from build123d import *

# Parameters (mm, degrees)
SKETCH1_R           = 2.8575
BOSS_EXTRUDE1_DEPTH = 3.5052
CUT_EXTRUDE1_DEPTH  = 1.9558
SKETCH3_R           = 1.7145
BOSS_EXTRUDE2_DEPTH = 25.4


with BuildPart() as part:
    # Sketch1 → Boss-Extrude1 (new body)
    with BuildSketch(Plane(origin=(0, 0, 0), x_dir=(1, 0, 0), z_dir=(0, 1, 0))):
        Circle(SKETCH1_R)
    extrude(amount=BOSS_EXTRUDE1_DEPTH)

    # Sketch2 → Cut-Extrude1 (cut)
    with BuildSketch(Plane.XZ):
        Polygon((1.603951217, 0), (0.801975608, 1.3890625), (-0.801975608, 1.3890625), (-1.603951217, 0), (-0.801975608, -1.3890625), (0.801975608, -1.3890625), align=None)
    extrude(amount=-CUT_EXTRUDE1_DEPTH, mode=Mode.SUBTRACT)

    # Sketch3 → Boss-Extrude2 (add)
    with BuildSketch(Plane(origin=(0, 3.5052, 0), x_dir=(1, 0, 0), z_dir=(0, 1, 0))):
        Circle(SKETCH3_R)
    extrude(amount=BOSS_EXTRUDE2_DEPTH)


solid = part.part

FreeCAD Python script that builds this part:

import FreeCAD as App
import Part
import Sketcher

V = App.Vector
Q = App.Units.Quantity

doc = App.newDocument("Part")
body = doc.addObject("PartDesign::Body", "Body")

sketch1 = body.newObject("Sketcher::SketchObject", "Sketch")
sketch1.AttachmentSupport = (doc.getObject("XZ_Plane"), [""])
sketch1.MapMode = "FlatFace"
sketch1.addGeometry(Part.Circle(V(0, 0, 0), V(0, 0, 1), 2.8575), False)
sketch1.addConstraint([
    Sketcher.Constraint("Coincident", 0, 3, -1, 1),
    Sketcher.Constraint("Diameter", 0, Q("0.225 in")),
])
pad1 = body.newObject("PartDesign::Pad", "Pad")
pad1.Profile = sketch1
pad1.Length = Q("0.138 in")
pad1.Reversed = True

sketch2 = body.newObject("Sketcher::SketchObject", "Sketch001")
sketch2.AttachmentSupport = (doc.getObject("XZ_Plane"), [""])
sketch2.MapMode = "FlatFace"
sketch2.addGeometry([
    Part.LineSegment(V(1.603951, 0, 0), V(0.801976, 1.389063, 0)),
    Part.LineSegment(V(0.801976, 1.389063, 0), V(-0.801976, 1.389063, 0)),
    Part.LineSegment(V(-0.801976, 1.389063, 0), V(-1.603951, 0, 0)),
    Part.LineSegment(V(-1.603951, 0, 0), V(-0.801976, -1.389063, 0)),
    Part.LineSegment(V(-0.801976, -1.389063, 0), V(0.801976, -1.389063, 0)),
    Part.LineSegment(V(0.801976, -1.389063, 0), V(1.603951, 0, 0)),
], False)
sketch2.addConstraint([
    Sketcher.Constraint("Coincident", 0, 2, 1, 1),
    Sketcher.Constraint("Coincident", 1, 2, 2, 1),
    Sketcher.Constraint("Coincident", 2, 2, 3, 1),
    Sketcher.Constraint("Coincident", 3, 2, 4, 1),
    Sketcher.Constraint("Coincident", 4, 2, 5, 1),
    Sketcher.Constraint("Coincident", 5, 2, 0, 1),
    Sketcher.Constraint("Horizontal", 1),
    Sketcher.Constraint("Horizontal", 4),
    Sketcher.Constraint("Symmetric", 0, 2, 3, 2, -1, 1),
    Sketcher.Constraint("Symmetric", 2, 2, 5, 2, -1, 1),
    Sketcher.Constraint("PointOnObject", 2, 2, -1),
    Sketcher.Constraint("Parallel", 2, 5),
    Sketcher.Constraint("Vertical", 1, 2, 3, 2),
    Sketcher.Constraint("Angle", 0, Q("120 deg")),
    Sketcher.Constraint("DistanceY", 3, 2, 1, 2, Q("0.109375 in")),
    Sketcher.Constraint("DistanceX", 1, 2, 1, 1, Q("1.603951 mm")),
])
pocket1 = body.newObject("PartDesign::Pocket", "Pocket")
pocket1.Profile = sketch2
pocket1.Length = Q("0.077 in")

sketch3 = body.newObject("Sketcher::SketchObject", "Sketch002")
sketch3.AttachmentSupport = (doc.getObject("XZ_Plane"), [""])
sketch3.MapMode = "FlatFace"
sketch3.AttachmentOffset = App.Placement(V(0, 0, -0.138 * 25.4), App.Rotation())
sketch3.addGeometry(Part.Circle(V(0, 0, 0), V(0, 0, 1), 1.7145), False)
sketch3.addConstraint([
    Sketcher.Constraint("Coincident", 0, 3, -1, 1),
    Sketcher.Constraint("Diameter", 0, Q("0.135 in")),
])
pad2 = body.newObject("PartDesign::Pad", "Pad001")
pad2.Profile = sketch3
pad2.Length = Q("1 in")
pad2.Reversed = True

doc.recompute()
